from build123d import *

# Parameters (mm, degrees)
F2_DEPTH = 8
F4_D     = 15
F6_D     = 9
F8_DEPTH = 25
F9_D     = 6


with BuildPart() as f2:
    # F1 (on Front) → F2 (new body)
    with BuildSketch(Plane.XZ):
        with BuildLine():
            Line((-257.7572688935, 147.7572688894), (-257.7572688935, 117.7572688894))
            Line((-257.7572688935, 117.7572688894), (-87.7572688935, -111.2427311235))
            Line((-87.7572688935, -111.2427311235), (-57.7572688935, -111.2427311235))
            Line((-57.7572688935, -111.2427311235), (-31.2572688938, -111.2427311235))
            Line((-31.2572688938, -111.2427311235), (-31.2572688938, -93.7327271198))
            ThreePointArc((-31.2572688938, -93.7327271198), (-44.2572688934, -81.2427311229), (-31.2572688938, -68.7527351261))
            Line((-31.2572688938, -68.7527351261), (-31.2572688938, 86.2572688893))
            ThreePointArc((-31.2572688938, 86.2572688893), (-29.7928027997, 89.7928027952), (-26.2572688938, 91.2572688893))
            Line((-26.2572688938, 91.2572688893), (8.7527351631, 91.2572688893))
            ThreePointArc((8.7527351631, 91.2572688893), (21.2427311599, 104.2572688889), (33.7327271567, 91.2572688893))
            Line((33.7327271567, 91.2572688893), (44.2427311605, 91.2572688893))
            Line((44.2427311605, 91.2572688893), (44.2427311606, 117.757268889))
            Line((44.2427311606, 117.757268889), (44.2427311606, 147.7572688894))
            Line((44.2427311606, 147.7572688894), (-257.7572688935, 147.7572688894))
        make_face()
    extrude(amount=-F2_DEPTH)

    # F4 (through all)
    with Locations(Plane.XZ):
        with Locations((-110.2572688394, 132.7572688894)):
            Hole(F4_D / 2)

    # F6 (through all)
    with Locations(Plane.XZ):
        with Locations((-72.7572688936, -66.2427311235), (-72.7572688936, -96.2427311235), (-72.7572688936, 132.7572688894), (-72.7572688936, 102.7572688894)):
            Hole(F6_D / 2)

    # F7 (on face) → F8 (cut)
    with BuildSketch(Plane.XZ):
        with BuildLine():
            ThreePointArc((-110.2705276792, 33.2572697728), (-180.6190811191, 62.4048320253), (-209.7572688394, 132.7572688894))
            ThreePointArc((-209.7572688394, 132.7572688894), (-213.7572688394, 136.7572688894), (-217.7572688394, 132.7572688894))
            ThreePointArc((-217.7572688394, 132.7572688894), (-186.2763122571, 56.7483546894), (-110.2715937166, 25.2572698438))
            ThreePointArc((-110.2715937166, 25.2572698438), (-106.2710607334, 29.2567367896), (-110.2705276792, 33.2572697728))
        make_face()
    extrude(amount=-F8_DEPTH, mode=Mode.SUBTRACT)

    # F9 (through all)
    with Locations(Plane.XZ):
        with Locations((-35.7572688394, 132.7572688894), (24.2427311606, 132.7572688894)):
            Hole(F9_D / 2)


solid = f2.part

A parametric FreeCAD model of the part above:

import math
import FreeCAD as App
import Part
import Sketcher
from FreeCAD import Vector

doc = App.newDocument("Part")
body = doc.addObject("PartDesign::Body", "Body")

# Sketch on XZ plane
sketch1 = body.newObject("Sketcher::SketchObject", "Sketch")
sketch1.AttachmentSupport = (doc.getObject("XZ_Plane"), [""])
sketch1.MapMode = "FlatFace"
sketch1.addGeometry([
    Part.LineSegment(Vector(-258, 148, 0), Vector(-258, 118, 0)),  # 0
    Part.LineSegment(Vector(-258, 118, 0), Vector(-88, -111, 0)),  # 1
    Part.LineSegment(Vector(-88, -111, 0), Vector(-31, -111, 0)),  # 2
    Part.LineSegment(Vector(-31, -111, 0), Vector(-31, -94, 0)),  # 3
    Part.ArcOfCircle(Part.Circle(Vector(-32, -81, 0), Vector(0, 0, 1), 12), math.radians(88), math.radians(272)),  # 4
    Part.LineSegment(Vector(-31, -69, 0), Vector(-31, 86, 0)),  # 5
    Part.ArcOfCircle(Part.Circle(Vector(-26, 86, 0), Vector(0, 0, 1), 5), math.radians(90), math.radians(180)),  # 6
    Part.LineSegment(Vector(-26, 91, 0), Vector(9, 91, 0)),  # 7
    Part.ArcOfCircle(Part.Circle(Vector(21, 92, 0), Vector(0, 0, 1), 12), math.radians(-2), math.radians(182)),  # 8
    Part.LineSegment(Vector(34, 91, 0), Vector(44, 91, 0)),  # 9
    Part.LineSegment(Vector(44, 91, 0), Vector(44, 118, 0)),  # 10
    Part.LineSegment(Vector(44, 118, 0), Vector(44, 148, 0)),  # 11
    Part.LineSegment(Vector(44, 148, 0), Vector(-258, 148, 0)),  # 12
], False)
sketch1.addConstraint([
    Sketcher.Constraint("Coincident", 0, 2, 1, 1),
    Sketcher.Constraint("Coincident", 1, 2, 2, 1),
    Sketcher.Constraint("Coincident", 2, 2, 3, 1),
    Sketcher.Constraint("Coincident", 3, 2, 4, 2),
    Sketcher.Constraint("Coincident", 4, 1, 5, 1),
    Sketcher.Constraint("Tangent", 5, 2, 6, 2),
    Sketcher.Constraint("Tangent", 6, 1, 7, 1),
    Sketcher.Constraint("Coincident", 7, 2, 8, 2),
    Sketcher.Constraint("Coincident", 8, 1, 9, 1),
    Sketcher.Constraint("Coincident", 9, 2, 10, 1),
    Sketcher.Constraint("Coincident", 10, 2, 11, 1),
    Sketcher.Constraint("Coincident", 11, 2, 12, 1),
    Sketcher.Constraint("Coincident", 12, 2, 0, 1),
    Sketcher.Constraint("Vertical", 0),
    Sketcher.Constraint("Horizontal", 2),
    Sketcher.Constraint("Vertical", 3),
    Sketcher.Constraint("Vertical", 5),
    Sketcher.Constraint("Horizontal", 7),
    Sketcher.Constraint("Horizontal", 9),
    Sketcher.Constraint("Vertical", 10),
    Sketcher.Constraint("Vertical", 11),
    Sketcher.Constraint("Horizontal", 12),
    Sketcher.Constraint("Equal", 4, 8),
    Sketcher.Constraint("Horizontal", 7, 2, 8, 1),
    Sketcher.Constraint("Horizontal", 0, 2, 10, 2),
    Sketcher.Constraint("Vertical", 3, 2, 4, 1),
    Sketcher.Constraint("Radius", 6, 5.0),
    Sketcher.Constraint("Radius", 4, 12.5),
    Sketcher.Constraint("DistanceX", 12, 2, 12, 1, 302.0),
    Sketcher.Constraint("DistanceY", 0, 2, 0, 1, 30.0),
    Sketcher.Constraint("DistanceX", 2, 1, 2, 2, 56.5),
    Sketcher.Constraint("DistanceY", 10, 1, 10, 2, 26.5),
    Sketcher.Constraint("DistanceX", 4, 3, 8, 3, 53.0),
    Sketcher.Constraint("DistanceY", 4, 3, 8, 3, 173.0),
    Sketcher.Constraint("DistanceX", 0, 2, 8, 3, 279.0),
    Sketcher.Constraint("DistanceY", 8, 3, 0, 2, 26.0),
    Sketcher.Constraint("DistanceX", 1, 2, 4, 3, 56.0),
    Sketcher.Constraint("DistanceY", 1, 2, 4, 3, 30.0),
    Sketcher.Constraint("DistanceX", 4, 3, -1, 1, 31.757269),
    Sketcher.Constraint("DistanceY", 4, 3, -1, 1, 81.242731),
])
pad1 = body.newObject("PartDesign::Pad", "Pad")
pad1.Profile = sketch1
pad1.Length = 8
pad1.Reversed = True

# Sketch on XZ plane
sketch2 = body.newObject("Sketcher::SketchObject", "Sketch001")
sketch2.AttachmentSupport = (doc.getObject("XZ_Plane"), [""])
sketch2.MapMode = "FlatFace"
sketch2.addGeometry(Part.Circle(Vector(-110, 133, 0), Vector(0, 0, 1), 8), False)
sketch2.addConstraint([
    Sketcher.Constraint("Diameter", 0, 15.0),
    Sketcher.Constraint("DistanceX", 0, 3, -1, 1, 110.257269),
    Sketcher.Constraint("DistanceY", -1, 1, 0, 3, 132.757269),
])
doc.recompute()
hole = body.newObject("PartDesign::Hole", "Hole")
hole.Profile = sketch2
hole.ThreadType = "None"
hole.Diameter = 15
hole.DepthType = "ThroughAll"

# Sketch on XZ plane
sketch3 = body.newObject("Sketcher::SketchObject", "Sketch002")
sketch3.AttachmentSupport = (doc.getObject("XZ_Plane"), [""])
sketch3.MapMode = "FlatFace"
sketch3.addGeometry([
    Part.Circle(Vector(-72.8, -66.2, 0), Vector(0, 0, 1), 4.5),
    Part.Circle(Vector(-72.8, -96.2, 0), Vector(0, 0, 1), 4.5),
    Part.Circle(Vector(-72.8, 132.8, 0), Vector(0, 0, 1), 4.5),
    Part.Circle(Vector(-72.8, 102.8, 0), Vector(0, 0, 1), 4.5),
], False)
sketch3.addConstraint([
    Sketcher.Constraint("Equal", 0, 1),
    Sketcher.Constraint("Equal", 1, 2),
    Sketcher.Constraint("Equal", 2, 3),
    Sketcher.Constraint("Vertical", 0, 3, 1, 3),
    Sketcher.Constraint("Vertical", 1, 3, 2, 3),
    Sketcher.Constraint("Vertical", 2, 3, 3, 3),
    Sketcher.Constraint("Diameter", 0, 9.0),
    Sketcher.Constraint("DistanceY", 1, 3, 0, 3, 30.0),
    Sketcher.Constraint("DistanceY", 0, 3, 2, 3, 199.0),
    Sketcher.Constraint("DistanceY", 3, 3, 2, 3, 30.0),
    Sketcher.Constraint("DistanceX", 0, 3, -1, 1, 72.757269),
    Sketcher.Constraint("DistanceY", 0, 3, -1, 1, 66.242731),
])
doc.recompute()
hole2 = body.newObject("PartDesign::Hole", "Hole001")
hole2.Profile = sketch3
hole2.ThreadType = "None"
hole2.Diameter = 9
hole2.DepthType = "ThroughAll"

# Sketch on XZ plane
sketch4 = body.newObject("Sketcher::SketchObject", "Sketch003")
sketch4.AttachmentSupport = (doc.getObject("XZ_Plane"), [""])
sketch4.MapMode = "FlatFace"
sketch4.addGeometry([
    Part.ArcOfCircle(Part.Circle(Vector(-110.3, 132.8, 0), Vector(0, 0, 1), 99.5), math.radians(180), math.radians(270)),
    Part.ArcOfCircle(Part.Circle(Vector(-213.8, 132.8, 0), Vector(0, 0, 1), 4), math.radians(0), math.radians(180)),
    Part.ArcOfCircle(Part.Circle(Vector(-110.3, 132.8, 0), Vector(0, 0, 1), 107.5), math.radians(180), math.radians(270)),
    Part.ArcOfCircle(Part.Circle(Vector(-110.3, 29.3, 0), Vector(0, 0, 1), 4), math.radians(-90), math.radians(90)),
], False)
sketch4.addConstraint([
    Sketcher.Constraint("Tangent", 0, 1, 1, 1),
    Sketcher.Constraint("Tangent", 1, 2, 2, 1),
    Sketcher.Constraint("Tangent", 2, 2, 3, 1),
    Sketcher.Constraint("Tangent", 3, 2, 0, 2),
    Sketcher.Constraint("Coincident", 2, 3, 0, 3),
    Sketcher.Constraint("Horizontal", 0, 3, 1, 3),
    Sketcher.Constraint("Radius", 1, 4.0),
    Sketcher.Constraint("Radius", 0, 99.5),
    Sketcher.Constraint("DistanceX", 0, 3, -1, 1, 110.257269),
    Sketcher.Constraint("DistanceY", -1, 1, 0, 3, 132.757269),
    Sketcher.Constraint("DistanceX", 3, 3, -1, 1, 110.271061),
])
pocket1 = body.newObject("PartDesign::Pocket", "Pocket")
pocket1.Profile = sketch4
pocket1.Length = 25

# Sketch on XZ plane
sketch5 = body.newObject("Sketcher::SketchObject", "Sketch004")
sketch5.AttachmentSupport = (doc.getObject("XZ_Plane"), [""])
sketch5.MapMode = "FlatFace"
sketch5.addGeometry([
    Part.Circle(Vector(-35.8, 132.8, 0), Vector(0, 0, 1), 3),
    Part.Circle(Vector(24.2, 132.8, 0), Vector(0, 0, 1), 3),
], False)
sketch5.addConstraint([
    Sketcher.Constraint("Equal", 0, 1),
    Sketcher.Constraint("Horizontal", 0, 3, 1, 3),
    Sketcher.Constraint("Diameter", 0, 6.0),
    Sketcher.Constraint("DistanceX", 0, 3, 1, 3, 60.0),
    Sketcher.Constraint("DistanceX", 0, 3, -1, 1, 35.757269),
    Sketcher.Constraint("DistanceY", -1, 1, 0, 3, 132.757269),
])
doc.recompute()
hole3 = body.newObject("PartDesign::Hole", "Hole002")
hole3.Profile = sketch5
hole3.ThreadType = "None"
hole3.Diameter = 6
hole3.DepthType = "ThroughAll"

doc.recompute()
